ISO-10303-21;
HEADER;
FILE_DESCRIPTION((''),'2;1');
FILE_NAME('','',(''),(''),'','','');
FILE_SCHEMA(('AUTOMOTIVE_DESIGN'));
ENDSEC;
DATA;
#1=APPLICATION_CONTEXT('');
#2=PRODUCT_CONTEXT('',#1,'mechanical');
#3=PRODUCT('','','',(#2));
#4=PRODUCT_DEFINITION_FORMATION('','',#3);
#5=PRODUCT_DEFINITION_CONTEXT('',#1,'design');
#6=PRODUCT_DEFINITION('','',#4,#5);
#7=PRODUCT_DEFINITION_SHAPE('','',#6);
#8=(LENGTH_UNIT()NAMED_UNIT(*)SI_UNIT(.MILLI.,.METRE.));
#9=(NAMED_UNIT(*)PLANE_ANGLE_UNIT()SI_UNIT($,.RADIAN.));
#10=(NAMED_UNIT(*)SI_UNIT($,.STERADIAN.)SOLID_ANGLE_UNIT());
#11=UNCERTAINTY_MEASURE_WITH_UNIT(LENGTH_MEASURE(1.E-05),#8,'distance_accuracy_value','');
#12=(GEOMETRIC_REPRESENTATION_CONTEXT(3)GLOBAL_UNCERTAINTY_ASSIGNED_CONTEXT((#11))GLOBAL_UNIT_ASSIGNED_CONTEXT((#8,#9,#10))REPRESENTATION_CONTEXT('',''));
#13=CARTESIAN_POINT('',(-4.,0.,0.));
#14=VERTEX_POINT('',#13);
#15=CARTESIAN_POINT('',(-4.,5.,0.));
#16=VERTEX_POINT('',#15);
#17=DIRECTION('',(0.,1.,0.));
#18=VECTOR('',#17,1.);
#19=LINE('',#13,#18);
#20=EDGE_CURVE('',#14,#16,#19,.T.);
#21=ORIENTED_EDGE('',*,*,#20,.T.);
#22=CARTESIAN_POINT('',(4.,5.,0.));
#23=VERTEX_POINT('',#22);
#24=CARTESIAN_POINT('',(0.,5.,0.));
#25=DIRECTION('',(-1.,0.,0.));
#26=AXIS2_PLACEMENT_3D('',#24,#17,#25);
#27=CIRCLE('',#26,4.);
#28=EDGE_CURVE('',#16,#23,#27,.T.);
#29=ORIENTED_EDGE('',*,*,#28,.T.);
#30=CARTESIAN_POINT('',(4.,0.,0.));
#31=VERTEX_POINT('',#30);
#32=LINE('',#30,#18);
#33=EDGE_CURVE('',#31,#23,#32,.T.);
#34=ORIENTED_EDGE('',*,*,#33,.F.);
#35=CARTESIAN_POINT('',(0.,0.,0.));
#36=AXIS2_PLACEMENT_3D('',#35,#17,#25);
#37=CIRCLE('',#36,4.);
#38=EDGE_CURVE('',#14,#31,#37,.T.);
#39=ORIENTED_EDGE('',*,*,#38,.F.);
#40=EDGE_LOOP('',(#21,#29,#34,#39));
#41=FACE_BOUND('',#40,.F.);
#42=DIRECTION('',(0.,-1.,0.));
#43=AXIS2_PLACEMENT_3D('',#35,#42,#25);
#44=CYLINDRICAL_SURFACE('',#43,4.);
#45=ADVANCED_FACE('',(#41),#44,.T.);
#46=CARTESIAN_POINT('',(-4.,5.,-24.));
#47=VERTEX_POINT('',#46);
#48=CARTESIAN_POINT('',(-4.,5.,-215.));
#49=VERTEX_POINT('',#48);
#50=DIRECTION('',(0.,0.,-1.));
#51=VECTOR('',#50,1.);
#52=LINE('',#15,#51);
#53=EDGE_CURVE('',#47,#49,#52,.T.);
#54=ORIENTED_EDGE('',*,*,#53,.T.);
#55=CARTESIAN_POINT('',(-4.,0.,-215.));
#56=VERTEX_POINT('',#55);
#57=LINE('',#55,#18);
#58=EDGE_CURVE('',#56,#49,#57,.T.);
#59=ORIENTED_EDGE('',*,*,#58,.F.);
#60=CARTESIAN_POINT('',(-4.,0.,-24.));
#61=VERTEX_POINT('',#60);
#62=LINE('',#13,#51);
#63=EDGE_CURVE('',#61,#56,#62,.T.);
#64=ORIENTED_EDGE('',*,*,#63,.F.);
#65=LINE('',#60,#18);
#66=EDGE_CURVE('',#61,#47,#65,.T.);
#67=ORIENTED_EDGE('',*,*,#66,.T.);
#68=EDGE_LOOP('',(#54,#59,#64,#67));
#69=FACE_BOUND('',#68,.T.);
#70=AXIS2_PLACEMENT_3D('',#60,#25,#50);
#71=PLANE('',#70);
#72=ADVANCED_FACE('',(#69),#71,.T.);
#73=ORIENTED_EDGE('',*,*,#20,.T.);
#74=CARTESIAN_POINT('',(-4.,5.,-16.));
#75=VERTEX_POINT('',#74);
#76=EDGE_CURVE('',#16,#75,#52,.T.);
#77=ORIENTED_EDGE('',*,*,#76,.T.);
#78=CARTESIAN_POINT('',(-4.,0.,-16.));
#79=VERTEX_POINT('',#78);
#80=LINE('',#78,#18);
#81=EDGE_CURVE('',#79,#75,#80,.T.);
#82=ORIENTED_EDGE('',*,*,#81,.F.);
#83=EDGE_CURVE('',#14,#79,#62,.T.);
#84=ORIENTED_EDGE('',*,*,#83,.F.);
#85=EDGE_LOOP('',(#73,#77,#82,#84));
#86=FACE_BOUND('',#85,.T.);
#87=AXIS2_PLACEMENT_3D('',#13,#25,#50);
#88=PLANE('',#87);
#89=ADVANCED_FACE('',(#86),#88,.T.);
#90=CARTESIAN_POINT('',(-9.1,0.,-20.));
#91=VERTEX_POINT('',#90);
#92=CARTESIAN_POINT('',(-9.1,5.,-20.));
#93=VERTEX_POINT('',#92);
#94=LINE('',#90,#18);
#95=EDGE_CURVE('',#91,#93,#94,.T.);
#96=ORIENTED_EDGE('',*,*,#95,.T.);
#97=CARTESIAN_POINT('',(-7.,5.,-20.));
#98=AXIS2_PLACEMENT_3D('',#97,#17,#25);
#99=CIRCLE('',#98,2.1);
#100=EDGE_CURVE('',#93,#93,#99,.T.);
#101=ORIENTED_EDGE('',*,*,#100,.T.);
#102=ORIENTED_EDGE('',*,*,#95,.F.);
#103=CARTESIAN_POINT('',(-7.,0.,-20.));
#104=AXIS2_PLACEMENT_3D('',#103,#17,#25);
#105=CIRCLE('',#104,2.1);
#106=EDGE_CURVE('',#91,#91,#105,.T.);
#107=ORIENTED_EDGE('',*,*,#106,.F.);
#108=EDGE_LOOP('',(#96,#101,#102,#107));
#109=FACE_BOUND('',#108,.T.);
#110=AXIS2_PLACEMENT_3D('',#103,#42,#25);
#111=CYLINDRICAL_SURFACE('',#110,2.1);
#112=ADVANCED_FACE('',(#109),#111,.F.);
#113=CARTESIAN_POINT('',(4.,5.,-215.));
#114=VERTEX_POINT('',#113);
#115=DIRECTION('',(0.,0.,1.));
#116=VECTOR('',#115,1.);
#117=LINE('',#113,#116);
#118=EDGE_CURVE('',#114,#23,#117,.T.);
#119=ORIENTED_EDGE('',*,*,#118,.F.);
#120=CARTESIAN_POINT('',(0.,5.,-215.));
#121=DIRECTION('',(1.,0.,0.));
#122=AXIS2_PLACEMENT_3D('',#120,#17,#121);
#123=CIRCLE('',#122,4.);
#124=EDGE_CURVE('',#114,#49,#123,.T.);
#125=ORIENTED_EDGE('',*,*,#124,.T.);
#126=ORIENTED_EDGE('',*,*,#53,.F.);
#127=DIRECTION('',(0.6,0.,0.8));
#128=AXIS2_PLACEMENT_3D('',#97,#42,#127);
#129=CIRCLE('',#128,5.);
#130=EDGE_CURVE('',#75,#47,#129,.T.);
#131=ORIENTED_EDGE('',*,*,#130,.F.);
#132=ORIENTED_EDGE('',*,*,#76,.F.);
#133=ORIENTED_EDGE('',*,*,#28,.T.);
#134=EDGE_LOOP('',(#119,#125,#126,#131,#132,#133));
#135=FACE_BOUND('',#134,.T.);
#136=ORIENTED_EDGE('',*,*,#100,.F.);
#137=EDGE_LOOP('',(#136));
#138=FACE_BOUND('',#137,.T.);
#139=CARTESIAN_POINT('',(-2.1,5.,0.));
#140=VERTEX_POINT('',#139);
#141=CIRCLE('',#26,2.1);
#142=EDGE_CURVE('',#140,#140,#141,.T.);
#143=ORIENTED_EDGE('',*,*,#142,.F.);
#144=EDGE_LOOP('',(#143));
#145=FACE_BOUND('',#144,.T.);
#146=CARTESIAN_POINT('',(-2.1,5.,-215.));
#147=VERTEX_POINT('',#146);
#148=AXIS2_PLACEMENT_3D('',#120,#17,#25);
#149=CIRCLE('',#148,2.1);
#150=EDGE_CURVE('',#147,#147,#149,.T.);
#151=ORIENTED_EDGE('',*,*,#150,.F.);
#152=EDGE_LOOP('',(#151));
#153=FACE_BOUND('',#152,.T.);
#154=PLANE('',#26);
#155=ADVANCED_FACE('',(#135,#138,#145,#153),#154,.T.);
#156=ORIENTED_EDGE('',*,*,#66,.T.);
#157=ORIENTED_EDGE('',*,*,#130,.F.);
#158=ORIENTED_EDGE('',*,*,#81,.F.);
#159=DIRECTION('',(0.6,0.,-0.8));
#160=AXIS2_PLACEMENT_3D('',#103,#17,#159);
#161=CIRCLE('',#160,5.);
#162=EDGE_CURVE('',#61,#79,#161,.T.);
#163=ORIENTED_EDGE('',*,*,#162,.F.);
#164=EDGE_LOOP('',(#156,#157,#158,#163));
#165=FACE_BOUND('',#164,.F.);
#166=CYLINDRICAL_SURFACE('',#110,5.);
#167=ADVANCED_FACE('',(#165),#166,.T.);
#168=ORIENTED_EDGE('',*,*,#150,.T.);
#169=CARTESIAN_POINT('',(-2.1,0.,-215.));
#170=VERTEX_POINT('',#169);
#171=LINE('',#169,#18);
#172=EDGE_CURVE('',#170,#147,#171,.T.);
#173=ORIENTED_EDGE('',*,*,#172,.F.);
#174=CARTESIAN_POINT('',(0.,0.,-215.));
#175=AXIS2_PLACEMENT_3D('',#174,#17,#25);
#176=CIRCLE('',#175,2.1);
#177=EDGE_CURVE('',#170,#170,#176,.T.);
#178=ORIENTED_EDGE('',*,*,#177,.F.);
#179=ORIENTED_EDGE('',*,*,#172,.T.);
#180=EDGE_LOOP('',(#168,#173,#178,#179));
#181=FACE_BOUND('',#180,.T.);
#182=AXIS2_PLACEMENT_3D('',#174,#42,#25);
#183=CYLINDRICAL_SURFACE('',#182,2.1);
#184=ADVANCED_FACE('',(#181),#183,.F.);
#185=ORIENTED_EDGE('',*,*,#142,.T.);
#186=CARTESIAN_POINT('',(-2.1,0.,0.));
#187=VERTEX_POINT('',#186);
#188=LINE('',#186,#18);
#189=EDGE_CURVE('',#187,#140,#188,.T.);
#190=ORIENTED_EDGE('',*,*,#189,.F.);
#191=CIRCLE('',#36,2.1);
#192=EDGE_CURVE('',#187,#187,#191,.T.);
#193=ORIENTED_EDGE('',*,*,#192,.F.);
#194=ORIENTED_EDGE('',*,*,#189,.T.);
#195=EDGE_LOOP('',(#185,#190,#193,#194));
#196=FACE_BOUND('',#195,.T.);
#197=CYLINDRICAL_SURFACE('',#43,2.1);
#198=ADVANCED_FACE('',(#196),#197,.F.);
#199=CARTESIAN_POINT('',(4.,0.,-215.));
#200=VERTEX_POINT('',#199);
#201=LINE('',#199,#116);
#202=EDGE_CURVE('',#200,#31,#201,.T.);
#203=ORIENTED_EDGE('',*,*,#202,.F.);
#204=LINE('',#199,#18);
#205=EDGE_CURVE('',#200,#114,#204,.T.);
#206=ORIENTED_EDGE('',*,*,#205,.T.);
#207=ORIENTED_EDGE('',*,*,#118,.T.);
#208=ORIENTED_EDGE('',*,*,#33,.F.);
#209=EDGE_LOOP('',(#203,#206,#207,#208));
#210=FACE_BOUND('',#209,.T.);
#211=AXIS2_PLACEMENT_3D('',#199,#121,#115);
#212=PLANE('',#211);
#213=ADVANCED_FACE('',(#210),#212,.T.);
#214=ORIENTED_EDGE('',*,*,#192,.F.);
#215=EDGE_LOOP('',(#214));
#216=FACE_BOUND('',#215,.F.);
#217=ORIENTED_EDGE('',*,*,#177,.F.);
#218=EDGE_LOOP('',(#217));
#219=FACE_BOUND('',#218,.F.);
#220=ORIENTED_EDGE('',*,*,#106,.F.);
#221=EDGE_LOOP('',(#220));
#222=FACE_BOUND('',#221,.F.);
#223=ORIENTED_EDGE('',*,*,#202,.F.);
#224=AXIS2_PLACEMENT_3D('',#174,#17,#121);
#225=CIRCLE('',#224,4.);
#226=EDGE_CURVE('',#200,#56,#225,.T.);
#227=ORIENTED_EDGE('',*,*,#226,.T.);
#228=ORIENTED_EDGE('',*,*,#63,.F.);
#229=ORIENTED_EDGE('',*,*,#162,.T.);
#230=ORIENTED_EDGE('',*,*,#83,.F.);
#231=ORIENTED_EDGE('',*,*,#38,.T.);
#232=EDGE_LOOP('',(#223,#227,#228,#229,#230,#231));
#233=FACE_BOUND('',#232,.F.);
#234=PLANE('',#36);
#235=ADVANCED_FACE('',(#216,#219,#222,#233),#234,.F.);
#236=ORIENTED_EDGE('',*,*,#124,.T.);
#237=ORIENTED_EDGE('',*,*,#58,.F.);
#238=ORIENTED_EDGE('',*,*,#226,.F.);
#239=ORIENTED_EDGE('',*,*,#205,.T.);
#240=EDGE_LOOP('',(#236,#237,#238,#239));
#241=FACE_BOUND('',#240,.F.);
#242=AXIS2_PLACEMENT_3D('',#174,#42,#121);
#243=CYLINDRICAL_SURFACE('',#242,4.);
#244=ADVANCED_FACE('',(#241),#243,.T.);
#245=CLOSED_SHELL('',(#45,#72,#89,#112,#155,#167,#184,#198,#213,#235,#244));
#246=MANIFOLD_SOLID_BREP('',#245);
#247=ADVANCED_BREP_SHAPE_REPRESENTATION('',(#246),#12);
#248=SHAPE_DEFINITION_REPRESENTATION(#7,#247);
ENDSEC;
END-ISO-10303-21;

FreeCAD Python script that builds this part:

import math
import FreeCAD as App
import Part
import Sketcher

V = App.Vector
Q = App.Units.Quantity

doc = App.newDocument("Part")
body = doc.addObject("PartDesign::Body", "Body")

# Sketch on XZ plane
sketch1 = body.newObject("Sketcher::SketchObject", "Sketch")
sketch1.AttachmentSupport = (doc.getObject("XZ_Plane"), [""])
sketch1.MapMode = "FlatFace"
sketch1.addGeometry([
    Part.LineSegment(V(-4, -16, 0), V(-4, 0, 0)),  # 0
    Part.ArcOfCircle(Part.Circle(V(0, 0, 0), V(0, 0, 1), 4), math.radians(0), math.radians(180)),  # 1
    Part.LineSegment(V(4, 0, 0), V(4, -215, 0)),  # 2
    Part.ArcOfCircle(Part.Circle(V(0, -215, 0), V(0, 0, 1), 4), math.radians(180), math.radians(360)),  # 3
    Part.LineSegment(V(-4, -215, 0), V(-4, -24, 0)),  # 4
    Part.ArcOfCircle(Part.Circle(V(-7, -20, 0), V(0, 0, 1), 5), math.radians(53.130102), math.radians(306.869898)),  # 5
    Part.Circle(V(0, -215, 0), V(0, 0, 1), 2.1),  # 6
    Part.Circle(V(0, 0, 0), V(0, 0, 1), 2.1),  # 7
    Part.Circle(V(-7, -20, 0), V(0, 0, 1), 2.1),  # 8
], False)
sketch1.addConstraint([
    Sketcher.Constraint("Tangent", 0, 2, 1, 2),
    Sketcher.Constraint("Tangent", 1, 1, 2, 1),
    Sketcher.Constraint("Tangent", 2, 2, 3, 2),
    Sketcher.Constraint("Tangent", 3, 1, 4, 1),
    Sketcher.Constraint("Coincident", 4, 2, 5, 2),
    Sketcher.Constraint("Coincident", 5, 1, 0, 1),
    Sketcher.Constraint("Vertical", 0),
    Sketcher.Constraint("Vertical", 2),
    Sketcher.Constraint("Vertical", 4),
    Sketcher.Constraint("Coincident", 1, 3, -1, 1),
    Sketcher.Constraint("Coincident", 7, 3, -1, 1),
    Sketcher.Constraint("Coincident", 6, 3, 3, 3),
    Sketcher.Constraint("Coincident", 8, 3, 5, 3),
    Sketcher.Constraint("Equal", 1, 3),
    Sketcher.Constraint("Equal", 6, 7),
    Sketcher.Constraint("Equal", 7, 8),
    Sketcher.Constraint("Radius", 1, Q("4 mm")),
    Sketcher.Constraint("Radius", 5, Q("5 mm")),
    Sketcher.Constraint("Diameter", 6, Q("4.2 mm")),
    Sketcher.Constraint("DistanceY", 2, 2, 2, 1, Q("215 mm")),
    Sketcher.Constraint("DistanceY", 5, 3, -1, 1, Q("20 mm")),
    Sketcher.Constraint("DistanceX", 5, 3, 0, 2, Q("3 mm")),
])
pad1 = body.newObject("PartDesign::Pad", "Pad")
pad1.Profile = sketch1
pad1.Length = 5
pad1.Reversed = True

doc.recompute()
